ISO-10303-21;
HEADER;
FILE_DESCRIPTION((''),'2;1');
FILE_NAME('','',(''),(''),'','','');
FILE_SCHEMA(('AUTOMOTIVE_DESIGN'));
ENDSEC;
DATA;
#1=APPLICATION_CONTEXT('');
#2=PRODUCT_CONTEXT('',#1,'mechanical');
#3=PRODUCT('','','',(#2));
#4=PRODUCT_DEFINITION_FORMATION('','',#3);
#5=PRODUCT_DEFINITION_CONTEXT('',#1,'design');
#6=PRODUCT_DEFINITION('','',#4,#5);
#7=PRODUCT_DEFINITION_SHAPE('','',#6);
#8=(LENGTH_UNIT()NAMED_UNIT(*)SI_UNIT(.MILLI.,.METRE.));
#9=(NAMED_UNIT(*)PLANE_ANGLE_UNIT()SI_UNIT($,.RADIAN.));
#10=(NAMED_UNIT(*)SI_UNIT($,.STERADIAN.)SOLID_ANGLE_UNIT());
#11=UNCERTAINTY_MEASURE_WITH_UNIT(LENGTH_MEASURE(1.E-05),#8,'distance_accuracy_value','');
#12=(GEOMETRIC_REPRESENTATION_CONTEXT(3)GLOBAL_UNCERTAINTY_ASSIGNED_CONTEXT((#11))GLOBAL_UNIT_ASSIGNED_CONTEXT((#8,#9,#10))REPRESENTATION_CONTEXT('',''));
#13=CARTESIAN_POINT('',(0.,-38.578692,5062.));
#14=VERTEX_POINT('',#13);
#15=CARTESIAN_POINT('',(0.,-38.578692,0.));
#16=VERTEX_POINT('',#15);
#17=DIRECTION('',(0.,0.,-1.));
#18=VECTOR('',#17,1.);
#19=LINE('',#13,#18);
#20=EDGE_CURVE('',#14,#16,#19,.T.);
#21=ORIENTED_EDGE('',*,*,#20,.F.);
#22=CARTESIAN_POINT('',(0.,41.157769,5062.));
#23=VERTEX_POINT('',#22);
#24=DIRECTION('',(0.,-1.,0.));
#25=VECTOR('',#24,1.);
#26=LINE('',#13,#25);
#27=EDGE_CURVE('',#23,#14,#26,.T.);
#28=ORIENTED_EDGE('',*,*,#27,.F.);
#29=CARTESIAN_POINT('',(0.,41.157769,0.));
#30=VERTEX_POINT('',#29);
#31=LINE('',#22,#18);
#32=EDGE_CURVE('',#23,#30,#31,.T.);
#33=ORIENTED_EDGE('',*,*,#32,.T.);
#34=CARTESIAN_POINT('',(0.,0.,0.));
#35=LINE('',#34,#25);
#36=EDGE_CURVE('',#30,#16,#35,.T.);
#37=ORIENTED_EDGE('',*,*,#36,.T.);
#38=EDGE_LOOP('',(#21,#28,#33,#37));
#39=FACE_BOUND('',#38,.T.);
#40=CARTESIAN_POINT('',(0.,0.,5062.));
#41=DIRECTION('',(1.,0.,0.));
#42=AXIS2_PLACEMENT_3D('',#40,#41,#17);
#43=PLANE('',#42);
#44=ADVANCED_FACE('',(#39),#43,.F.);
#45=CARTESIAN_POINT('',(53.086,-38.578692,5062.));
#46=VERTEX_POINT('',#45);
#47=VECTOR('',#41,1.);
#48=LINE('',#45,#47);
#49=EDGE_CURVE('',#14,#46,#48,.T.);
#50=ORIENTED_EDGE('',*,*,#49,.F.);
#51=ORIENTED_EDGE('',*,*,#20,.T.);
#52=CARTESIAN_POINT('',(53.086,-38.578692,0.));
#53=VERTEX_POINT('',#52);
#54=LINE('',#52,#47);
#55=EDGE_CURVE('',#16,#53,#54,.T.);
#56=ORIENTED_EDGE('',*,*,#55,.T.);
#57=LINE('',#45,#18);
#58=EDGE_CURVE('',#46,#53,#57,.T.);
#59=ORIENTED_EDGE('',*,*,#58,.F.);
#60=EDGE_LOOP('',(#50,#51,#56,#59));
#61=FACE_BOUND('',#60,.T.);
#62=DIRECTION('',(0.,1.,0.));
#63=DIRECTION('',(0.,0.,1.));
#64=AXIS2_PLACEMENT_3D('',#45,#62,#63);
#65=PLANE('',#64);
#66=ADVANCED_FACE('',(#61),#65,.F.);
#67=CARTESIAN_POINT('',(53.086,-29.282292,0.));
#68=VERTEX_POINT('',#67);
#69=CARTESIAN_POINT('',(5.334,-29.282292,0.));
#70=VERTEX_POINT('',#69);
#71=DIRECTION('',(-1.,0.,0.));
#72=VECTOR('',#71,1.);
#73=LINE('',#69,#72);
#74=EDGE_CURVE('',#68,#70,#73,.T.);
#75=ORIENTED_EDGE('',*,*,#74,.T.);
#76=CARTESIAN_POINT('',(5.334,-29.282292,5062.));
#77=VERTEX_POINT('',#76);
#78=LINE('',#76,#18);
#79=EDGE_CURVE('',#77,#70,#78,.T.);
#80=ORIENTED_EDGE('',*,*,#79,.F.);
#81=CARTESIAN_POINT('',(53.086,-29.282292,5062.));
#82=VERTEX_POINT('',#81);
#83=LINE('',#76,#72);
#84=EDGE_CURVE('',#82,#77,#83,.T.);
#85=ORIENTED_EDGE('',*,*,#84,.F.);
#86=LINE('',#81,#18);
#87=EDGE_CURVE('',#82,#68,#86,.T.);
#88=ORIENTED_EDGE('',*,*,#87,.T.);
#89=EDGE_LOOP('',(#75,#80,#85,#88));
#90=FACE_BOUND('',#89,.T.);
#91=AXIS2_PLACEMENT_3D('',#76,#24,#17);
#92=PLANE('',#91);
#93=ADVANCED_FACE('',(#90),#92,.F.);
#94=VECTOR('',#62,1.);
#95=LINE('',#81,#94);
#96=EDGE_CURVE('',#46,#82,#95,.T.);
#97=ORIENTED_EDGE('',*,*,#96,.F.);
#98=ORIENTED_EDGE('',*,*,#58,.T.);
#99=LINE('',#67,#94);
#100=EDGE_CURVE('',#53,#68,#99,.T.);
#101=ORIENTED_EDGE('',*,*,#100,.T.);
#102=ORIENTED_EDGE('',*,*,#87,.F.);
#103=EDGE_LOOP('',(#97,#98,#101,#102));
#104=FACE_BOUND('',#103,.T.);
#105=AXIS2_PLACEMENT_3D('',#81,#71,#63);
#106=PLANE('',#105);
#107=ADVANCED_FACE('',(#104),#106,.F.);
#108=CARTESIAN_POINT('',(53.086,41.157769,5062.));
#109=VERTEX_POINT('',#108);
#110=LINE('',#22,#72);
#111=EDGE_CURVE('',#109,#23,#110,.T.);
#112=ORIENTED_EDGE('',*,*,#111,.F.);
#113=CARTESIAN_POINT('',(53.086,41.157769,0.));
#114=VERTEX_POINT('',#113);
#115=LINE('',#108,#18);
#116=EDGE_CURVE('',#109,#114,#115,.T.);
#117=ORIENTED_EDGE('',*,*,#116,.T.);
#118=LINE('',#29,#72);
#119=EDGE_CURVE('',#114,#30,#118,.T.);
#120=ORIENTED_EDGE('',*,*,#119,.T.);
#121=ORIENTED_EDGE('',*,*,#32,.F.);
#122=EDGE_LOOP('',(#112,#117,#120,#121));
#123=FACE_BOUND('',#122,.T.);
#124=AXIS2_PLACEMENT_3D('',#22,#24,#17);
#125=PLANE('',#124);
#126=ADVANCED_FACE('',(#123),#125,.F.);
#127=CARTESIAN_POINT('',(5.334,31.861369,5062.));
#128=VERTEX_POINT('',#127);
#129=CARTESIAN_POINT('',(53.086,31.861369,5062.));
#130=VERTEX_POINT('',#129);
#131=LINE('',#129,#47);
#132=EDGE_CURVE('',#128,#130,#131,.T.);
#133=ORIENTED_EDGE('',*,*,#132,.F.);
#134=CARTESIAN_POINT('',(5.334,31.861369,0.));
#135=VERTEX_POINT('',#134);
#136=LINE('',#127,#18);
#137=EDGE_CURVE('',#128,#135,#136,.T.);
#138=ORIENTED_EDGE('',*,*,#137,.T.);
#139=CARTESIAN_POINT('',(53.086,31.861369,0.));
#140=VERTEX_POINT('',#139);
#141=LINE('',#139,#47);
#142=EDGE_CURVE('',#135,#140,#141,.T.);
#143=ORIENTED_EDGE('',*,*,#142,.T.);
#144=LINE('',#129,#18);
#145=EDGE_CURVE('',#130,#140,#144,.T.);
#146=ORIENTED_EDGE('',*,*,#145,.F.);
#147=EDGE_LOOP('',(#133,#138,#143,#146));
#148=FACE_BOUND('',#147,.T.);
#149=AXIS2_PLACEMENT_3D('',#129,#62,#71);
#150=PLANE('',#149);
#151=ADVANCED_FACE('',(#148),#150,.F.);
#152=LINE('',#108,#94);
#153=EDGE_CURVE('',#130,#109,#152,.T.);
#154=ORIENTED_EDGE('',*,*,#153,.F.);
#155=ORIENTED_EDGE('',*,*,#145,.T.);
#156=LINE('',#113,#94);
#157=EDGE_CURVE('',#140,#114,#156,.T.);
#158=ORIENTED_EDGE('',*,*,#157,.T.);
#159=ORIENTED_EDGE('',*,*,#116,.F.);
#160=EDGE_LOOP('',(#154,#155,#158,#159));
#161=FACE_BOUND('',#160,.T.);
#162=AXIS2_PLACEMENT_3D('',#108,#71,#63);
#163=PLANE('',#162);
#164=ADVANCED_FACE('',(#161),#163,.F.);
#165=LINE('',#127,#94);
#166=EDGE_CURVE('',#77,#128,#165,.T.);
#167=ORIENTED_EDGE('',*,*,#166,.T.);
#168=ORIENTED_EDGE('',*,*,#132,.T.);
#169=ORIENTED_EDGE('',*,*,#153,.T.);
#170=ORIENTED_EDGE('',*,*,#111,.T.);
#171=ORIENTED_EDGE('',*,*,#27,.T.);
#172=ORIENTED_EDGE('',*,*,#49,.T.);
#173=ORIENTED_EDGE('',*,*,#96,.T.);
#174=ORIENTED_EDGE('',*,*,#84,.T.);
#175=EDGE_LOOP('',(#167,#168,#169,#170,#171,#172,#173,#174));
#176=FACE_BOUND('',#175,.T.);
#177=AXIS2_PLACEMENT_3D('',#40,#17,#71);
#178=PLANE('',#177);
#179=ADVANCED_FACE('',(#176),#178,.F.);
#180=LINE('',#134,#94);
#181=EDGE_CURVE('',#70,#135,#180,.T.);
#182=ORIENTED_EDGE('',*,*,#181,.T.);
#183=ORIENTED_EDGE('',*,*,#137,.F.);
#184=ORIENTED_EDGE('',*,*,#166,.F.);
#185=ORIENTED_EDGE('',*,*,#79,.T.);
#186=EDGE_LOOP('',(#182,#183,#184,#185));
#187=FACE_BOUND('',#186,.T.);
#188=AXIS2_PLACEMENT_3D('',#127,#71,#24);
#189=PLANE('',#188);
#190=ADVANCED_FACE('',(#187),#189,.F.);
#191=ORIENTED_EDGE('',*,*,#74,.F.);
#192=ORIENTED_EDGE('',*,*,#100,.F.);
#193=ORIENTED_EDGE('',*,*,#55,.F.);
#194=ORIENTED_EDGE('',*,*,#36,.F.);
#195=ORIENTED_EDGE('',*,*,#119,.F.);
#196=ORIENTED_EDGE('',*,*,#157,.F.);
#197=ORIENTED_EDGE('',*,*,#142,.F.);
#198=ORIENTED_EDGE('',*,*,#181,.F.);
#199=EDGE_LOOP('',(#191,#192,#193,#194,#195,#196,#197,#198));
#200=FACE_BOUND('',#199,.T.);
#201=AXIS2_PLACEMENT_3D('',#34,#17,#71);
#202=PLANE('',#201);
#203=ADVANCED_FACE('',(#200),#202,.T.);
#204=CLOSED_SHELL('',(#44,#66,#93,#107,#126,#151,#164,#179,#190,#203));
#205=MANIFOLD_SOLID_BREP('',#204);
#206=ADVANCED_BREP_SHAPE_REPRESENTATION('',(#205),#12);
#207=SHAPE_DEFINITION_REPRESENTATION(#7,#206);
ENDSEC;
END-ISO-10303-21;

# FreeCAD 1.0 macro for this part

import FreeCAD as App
import Part
import Sketcher
from FreeCAD import Vector
Q = App.Units.Quantity


def add_polygon(sketch, points):
    """Adds a closed chain of lines whose ends are joined by coincident constraints."""
    first, n = sketch.GeometryCount, len(points)
    for a, b in zip(points, points[1:] + points[:1]):
        sketch.addGeometry(Part.LineSegment(App.Vector(*a, 0), App.Vector(*b, 0)), False)
    for i in range(n):
        sketch.addConstraint(Sketcher.Constraint("Coincident", first + i, 2, first + (i + 1) % n, 1))

doc = App.newDocument("Part")
body = doc.addObject("PartDesign::Body", "Body")

# Sketch on XY plane
sketch1 = doc.addObject("Sketcher::SketchObject", "Sketch")
body.addObject(sketch1)
sketch1.AttachmentSupport = (doc.XY_Plane, [""])
sketch1.MapMode = "FlatFace"
add_polygon(sketch1, [(0, 41), (0, -39), (53, -39), (53, -29), (5, -29), (5, 32), (53, 32), (53, 41)])  # lines 0-7
sketch1.addConstraint(Sketcher.Constraint("Vertical", 0))
sketch1.addConstraint(Sketcher.Constraint("Horizontal", 1))
sketch1.addConstraint(Sketcher.Constraint("Vertical", 2))
sketch1.addConstraint(Sketcher.Constraint("Horizontal", 3))
sketch1.addConstraint(Sketcher.Constraint("Vertical", 4))
sketch1.addConstraint(Sketcher.Constraint("Horizontal", 5))
sketch1.addConstraint(Sketcher.Constraint("Vertical", 6))
sketch1.addConstraint(Sketcher.Constraint("Horizontal", 7))
sketch1.addConstraint(Sketcher.Constraint("PointOnObject", 0, 2, -2))
sketch1.addConstraint(Sketcher.Constraint("Vertical", 2, 2, 5, 2))
sketch1.addConstraint(Sketcher.Constraint("Equal", 2, 6))
sketch1.addConstraint(Sketcher.Constraint("DistanceX", 1, 1, 1, 2, Q("2.09 in")))
sketch1.addConstraint(Sketcher.Constraint("DistanceX", 3, 2, 3, 1, Q("1.88 in")))
sketch1.addConstraint(Sketcher.Constraint("DistanceY", 2, 1, 2, 2, Q("0.366 in")))
sketch1.addConstraint(Sketcher.Constraint("DistanceY", 0, 2, 0, 1, 79.736462))
sketch1.addConstraint(Sketcher.Constraint("DistanceY", -1, 1, 4, 2, 31.861369))
pad1 = doc.addObject("PartDesign::Pad", "Pad")
body.addObject(pad1)
pad1.Profile = sketch1
pad1.Length = 5062

doc.recompute()
